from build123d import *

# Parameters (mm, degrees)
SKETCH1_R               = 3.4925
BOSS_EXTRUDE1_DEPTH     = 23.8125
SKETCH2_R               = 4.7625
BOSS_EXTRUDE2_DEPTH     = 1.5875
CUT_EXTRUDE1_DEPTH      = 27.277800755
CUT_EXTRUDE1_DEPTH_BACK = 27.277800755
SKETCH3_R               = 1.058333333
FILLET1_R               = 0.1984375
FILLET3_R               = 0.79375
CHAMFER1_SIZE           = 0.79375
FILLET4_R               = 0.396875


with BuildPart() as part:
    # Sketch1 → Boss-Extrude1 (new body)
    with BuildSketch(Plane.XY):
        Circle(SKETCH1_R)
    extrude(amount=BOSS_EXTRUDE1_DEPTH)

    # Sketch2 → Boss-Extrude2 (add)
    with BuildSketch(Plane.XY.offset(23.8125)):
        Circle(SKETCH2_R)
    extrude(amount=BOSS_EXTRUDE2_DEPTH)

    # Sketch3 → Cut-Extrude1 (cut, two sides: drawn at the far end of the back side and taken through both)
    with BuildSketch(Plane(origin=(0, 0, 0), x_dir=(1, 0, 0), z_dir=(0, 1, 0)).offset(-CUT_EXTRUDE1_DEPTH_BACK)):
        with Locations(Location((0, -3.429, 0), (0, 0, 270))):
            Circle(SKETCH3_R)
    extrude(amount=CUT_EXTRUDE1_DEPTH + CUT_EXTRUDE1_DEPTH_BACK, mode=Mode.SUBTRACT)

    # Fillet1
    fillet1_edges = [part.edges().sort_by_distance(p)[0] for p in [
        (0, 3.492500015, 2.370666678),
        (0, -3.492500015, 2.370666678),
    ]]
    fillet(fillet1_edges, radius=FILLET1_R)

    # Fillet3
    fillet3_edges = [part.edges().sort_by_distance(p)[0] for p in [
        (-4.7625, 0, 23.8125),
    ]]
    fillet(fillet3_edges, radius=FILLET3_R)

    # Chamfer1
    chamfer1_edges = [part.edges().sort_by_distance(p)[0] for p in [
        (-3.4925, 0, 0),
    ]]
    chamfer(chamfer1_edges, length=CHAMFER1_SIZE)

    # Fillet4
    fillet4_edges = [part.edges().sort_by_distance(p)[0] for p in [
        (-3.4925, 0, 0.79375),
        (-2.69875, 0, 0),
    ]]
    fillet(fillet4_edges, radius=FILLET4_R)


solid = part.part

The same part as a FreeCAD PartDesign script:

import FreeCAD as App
import Part
import Sketcher
Q = App.Units.Quantity


def edges_at(feature, points):
    """Names of the edges that pass closest to the given points."""
    edges = feature.Shape.Edges
    near = lambda p: min(range(len(edges)), key=lambda i: edges[i].distToShape(Part.Vertex(*p))[0])
    return sorted({f"Edge{near(p) + 1}" for p in points})

doc = App.newDocument("Part")
body = doc.addObject("PartDesign::Body", "Body")

sketch1 = body.newObject("Sketcher::SketchObject", "Sketch")
sketch1.AttachmentSupport = (doc.getObject("XY_Plane"), [""])
sketch1.MapMode = "FlatFace"
sketch1.addGeometry(Part.Circle(App.Vector(0, 0, 0), App.Vector(0, 0, 1), 3.5), False)
sketch1.addConstraint(Sketcher.Constraint("Coincident", 0, 3, -1, 1))
sketch1.addConstraint(Sketcher.Constraint("Diameter", 0, Q("0.275 in")))
pad1 = body.newObject("PartDesign::Pad", "Pad")
pad1.Profile = sketch1
pad1.Length = Q("0.9375 in")

sketch2 = body.newObject("Sketcher::SketchObject", "Sketch001")
sketch2.AttachmentSupport = (doc.getObject("XY_Plane"), [""])
sketch2.MapMode = "FlatFace"
sketch2.AttachmentOffset = App.Placement(App.Vector(0, 0, 0.9375 * 25.4), App.Rotation())
sketch2.addGeometry(Part.Circle(App.Vector(0, 0, 0), App.Vector(0, 0, 1), 4.8), False)
sketch2.addConstraint(Sketcher.Constraint("Coincident", 0, 3, -1, 1))
sketch2.addConstraint(Sketcher.Constraint("Diameter", 0, Q("0.375 in")))
pad2 = body.newObject("PartDesign::Pad", "Pad001")
pad2.Profile = sketch2
pad2.Length = Q("0.0625 in")

sketch3 = body.newObject("Sketcher::SketchObject", "Sketch002")
sketch3.AttachmentSupport = (doc.getObject("XZ_Plane"), [""])
sketch3.MapMode = "FlatFace"
sketch3.addGeometry(Part.Circle(App.Vector(0, 3.4, 0), App.Vector(0, 0, 1), 1.1), False)
sketch3.addConstraint(Sketcher.Constraint("PointOnObject", 0, 3, -2))
sketch3.addConstraint(Sketcher.Constraint("DistanceY", -1, 1, 0, 3, Q("0.135 in")))
sketch3.addConstraint(Sketcher.Constraint("Diameter", 0, 2.116667))
pocket1 = body.newObject("PartDesign::Pocket", "Pocket")
pocket1.Profile = sketch3
pocket1.Type = "ThroughAll"
pocket1.Midplane = True
doc.recompute()

fillet = body.newObject("PartDesign::Fillet", "Fillet")
fillet.Base = (pocket1, edges_at(pocket1, [(0, 3.493, 2.371), (0, -3.493, 2.371)]))
fillet.Radius = 0.198437
doc.recompute()

fillet2 = body.newObject("PartDesign::Fillet", "Fillet001")
fillet2.Base = (fillet, edges_at(fillet, [(-4.763, 0, 23.812)]))
fillet2.Radius = Q("0.03125 in")
doc.recompute()

chamfer = body.newObject("PartDesign::Chamfer", "Chamfer")
chamfer.Base = (fillet2, edges_at(fillet2, [(-3.493, 0, 0)]))
chamfer.Size = Q("0.03125 in")
doc.recompute()

fillet3 = body.newObject("PartDesign::Fillet", "Fillet002")
fillet3.Base = (chamfer, edges_at(chamfer, [(-3.493, 0, 0.794), (-2.699, 0, 0)]))
fillet3.Radius = Q("0.015625 in")

doc.recompute()
